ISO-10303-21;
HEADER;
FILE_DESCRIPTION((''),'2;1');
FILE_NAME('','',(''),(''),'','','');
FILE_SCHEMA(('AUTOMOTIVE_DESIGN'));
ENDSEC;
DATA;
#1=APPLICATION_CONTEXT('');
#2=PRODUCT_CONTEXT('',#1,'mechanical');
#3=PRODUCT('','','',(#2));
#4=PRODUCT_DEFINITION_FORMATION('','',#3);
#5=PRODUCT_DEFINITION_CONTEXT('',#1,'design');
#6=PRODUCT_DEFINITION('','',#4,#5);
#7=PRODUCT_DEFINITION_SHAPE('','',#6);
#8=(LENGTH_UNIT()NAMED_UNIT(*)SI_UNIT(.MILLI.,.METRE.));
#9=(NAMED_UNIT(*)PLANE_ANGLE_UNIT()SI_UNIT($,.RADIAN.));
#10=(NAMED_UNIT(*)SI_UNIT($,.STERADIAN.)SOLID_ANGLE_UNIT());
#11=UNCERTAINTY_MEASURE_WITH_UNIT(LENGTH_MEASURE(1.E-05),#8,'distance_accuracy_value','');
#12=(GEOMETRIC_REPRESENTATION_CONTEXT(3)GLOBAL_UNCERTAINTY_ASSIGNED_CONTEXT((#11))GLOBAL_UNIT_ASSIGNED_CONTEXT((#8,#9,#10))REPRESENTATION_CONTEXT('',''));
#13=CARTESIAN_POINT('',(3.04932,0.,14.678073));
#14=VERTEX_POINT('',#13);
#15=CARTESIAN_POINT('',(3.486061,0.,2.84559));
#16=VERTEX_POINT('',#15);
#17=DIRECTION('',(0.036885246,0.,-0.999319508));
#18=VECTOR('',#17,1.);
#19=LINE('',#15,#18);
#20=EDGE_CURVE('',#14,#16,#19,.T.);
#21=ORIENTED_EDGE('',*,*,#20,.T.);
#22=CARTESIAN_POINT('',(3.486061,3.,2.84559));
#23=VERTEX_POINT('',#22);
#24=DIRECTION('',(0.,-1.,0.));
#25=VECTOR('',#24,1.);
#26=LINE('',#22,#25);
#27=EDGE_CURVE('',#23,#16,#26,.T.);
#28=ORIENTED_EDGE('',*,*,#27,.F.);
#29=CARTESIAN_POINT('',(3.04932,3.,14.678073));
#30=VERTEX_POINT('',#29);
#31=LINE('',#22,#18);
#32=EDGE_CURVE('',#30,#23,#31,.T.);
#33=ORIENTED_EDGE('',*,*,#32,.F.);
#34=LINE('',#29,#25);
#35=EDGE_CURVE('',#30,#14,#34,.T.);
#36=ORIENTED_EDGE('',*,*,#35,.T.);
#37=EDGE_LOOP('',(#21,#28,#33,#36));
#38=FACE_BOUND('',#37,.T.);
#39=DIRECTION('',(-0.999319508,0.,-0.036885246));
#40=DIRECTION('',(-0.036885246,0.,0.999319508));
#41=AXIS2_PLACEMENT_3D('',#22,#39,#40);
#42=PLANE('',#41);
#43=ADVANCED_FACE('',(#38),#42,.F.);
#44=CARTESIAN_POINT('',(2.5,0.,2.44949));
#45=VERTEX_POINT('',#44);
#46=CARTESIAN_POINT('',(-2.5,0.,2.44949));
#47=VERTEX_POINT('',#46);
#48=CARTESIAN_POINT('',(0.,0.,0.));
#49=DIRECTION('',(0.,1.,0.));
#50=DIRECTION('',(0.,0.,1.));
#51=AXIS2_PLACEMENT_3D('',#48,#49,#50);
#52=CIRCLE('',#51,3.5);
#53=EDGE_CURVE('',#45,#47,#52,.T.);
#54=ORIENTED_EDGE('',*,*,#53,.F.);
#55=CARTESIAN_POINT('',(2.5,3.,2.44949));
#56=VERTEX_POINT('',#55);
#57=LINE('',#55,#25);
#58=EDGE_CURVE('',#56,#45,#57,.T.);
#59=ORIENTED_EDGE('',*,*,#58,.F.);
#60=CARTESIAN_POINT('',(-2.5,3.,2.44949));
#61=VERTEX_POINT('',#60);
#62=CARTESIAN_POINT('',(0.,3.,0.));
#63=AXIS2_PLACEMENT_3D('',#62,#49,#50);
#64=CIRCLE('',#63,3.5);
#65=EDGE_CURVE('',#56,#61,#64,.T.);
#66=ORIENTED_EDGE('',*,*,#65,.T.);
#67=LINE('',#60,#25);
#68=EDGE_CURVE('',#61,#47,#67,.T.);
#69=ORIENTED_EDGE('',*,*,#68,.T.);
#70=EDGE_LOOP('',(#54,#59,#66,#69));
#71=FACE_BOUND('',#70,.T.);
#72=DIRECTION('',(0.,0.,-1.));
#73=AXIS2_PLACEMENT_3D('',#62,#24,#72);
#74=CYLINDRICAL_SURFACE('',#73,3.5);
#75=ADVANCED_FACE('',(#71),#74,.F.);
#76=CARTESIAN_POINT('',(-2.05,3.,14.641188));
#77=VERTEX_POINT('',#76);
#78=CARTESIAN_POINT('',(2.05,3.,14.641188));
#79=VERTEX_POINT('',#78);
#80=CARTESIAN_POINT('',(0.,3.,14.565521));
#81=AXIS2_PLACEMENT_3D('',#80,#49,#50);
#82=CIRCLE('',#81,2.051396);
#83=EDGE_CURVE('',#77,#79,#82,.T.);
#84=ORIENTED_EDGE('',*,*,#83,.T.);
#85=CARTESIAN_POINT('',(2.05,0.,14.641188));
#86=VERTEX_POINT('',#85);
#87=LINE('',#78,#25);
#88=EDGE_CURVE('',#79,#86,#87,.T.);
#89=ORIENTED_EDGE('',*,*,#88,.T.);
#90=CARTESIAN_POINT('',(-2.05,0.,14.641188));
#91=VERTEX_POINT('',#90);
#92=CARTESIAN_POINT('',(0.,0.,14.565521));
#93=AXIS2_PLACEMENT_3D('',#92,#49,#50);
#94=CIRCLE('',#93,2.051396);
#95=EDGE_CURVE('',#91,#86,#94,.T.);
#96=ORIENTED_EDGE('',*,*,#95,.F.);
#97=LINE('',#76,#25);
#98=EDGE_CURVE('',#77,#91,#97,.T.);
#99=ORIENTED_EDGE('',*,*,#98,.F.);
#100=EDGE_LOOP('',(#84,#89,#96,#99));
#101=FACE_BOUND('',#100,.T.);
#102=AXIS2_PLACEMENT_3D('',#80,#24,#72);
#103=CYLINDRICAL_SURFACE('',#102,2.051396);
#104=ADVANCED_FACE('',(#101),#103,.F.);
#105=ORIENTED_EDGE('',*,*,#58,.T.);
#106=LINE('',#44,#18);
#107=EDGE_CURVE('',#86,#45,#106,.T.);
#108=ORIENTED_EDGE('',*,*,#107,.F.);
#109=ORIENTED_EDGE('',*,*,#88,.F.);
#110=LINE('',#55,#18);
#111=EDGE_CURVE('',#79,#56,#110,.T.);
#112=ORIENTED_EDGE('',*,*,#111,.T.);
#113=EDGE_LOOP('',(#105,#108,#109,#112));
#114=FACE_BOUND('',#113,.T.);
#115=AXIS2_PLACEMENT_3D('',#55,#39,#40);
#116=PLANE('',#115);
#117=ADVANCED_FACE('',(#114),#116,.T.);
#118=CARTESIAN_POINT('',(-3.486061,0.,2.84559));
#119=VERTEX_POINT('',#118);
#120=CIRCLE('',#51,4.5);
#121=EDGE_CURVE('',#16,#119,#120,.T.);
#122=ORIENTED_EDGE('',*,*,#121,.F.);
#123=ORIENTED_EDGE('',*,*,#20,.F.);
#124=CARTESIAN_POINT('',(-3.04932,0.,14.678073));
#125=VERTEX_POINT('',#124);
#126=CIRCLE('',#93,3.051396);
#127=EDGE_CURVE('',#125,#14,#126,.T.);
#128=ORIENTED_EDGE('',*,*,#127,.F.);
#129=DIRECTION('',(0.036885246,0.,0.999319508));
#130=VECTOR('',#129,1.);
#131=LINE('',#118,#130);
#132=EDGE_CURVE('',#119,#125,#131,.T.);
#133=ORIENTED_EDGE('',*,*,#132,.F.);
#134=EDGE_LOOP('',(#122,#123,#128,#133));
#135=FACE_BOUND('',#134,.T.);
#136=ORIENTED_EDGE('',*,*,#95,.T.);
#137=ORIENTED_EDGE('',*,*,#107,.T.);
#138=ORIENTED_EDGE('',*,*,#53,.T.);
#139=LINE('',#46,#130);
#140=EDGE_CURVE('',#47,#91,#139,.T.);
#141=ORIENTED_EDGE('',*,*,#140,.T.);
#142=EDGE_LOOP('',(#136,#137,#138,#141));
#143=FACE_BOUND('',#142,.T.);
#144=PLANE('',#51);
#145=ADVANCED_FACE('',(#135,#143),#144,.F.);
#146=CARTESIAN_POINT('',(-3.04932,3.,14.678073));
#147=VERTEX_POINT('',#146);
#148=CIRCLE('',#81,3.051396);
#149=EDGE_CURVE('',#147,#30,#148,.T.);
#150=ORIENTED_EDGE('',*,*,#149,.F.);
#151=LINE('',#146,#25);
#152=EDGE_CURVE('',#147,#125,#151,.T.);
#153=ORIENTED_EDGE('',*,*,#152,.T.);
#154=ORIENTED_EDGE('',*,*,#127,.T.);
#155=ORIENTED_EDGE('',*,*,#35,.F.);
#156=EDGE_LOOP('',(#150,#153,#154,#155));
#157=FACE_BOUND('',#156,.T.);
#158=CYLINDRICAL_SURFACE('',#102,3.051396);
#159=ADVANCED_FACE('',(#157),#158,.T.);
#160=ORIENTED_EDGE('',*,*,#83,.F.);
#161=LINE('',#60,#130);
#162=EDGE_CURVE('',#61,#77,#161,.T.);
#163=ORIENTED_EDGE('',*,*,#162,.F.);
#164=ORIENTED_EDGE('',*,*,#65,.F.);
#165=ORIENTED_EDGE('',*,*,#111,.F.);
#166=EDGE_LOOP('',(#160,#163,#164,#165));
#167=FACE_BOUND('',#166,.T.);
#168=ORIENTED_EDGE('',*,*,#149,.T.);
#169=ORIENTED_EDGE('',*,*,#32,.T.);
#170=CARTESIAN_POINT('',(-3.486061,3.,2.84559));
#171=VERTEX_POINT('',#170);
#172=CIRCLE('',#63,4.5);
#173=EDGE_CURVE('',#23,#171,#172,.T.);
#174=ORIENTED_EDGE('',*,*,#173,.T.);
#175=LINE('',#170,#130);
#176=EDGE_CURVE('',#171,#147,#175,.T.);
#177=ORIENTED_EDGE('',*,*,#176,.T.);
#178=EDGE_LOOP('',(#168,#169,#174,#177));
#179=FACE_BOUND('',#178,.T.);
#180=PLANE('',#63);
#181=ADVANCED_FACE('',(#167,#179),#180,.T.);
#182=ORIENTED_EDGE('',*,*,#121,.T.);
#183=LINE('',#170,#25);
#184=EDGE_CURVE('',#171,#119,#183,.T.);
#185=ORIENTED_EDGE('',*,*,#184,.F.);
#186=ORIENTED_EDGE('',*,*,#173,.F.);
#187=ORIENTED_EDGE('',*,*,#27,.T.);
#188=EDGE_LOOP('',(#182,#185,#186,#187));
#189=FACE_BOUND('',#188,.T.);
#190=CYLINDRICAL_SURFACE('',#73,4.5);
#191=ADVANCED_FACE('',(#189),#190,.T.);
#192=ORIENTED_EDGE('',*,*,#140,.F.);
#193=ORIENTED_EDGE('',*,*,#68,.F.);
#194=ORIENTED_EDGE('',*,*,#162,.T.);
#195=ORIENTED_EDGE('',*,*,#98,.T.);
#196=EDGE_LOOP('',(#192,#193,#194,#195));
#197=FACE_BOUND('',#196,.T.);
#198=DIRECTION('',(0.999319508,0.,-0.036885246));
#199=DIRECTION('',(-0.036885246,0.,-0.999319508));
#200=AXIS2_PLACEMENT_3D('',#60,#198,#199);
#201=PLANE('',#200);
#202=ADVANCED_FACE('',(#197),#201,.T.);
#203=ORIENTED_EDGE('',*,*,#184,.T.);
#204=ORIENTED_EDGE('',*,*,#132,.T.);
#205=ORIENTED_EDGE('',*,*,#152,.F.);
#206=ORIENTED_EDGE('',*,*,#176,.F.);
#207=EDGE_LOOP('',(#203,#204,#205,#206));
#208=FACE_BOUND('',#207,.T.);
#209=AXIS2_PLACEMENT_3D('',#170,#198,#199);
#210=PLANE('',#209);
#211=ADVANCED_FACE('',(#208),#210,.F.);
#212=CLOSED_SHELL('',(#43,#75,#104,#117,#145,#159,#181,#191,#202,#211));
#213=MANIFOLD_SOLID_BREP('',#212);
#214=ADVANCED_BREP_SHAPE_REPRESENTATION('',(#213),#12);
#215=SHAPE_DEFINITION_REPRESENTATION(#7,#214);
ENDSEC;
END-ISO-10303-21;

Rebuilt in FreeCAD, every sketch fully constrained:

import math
import FreeCAD as App
import Part
import Sketcher

doc = App.newDocument("Part")
params = doc.addObject("Spreadsheet::Sheet", "Params")
for row, (alias, value) in enumerate([
    ("sketch1_radius", "4.5 mm"),
    ("sketch1_radius2", "3.5 mm"),
    ("sketch1_length", "12.2 mm"),
    ("pad1_length", "3 mm"),
], start=1):
    params.set(f"A{row}", alias)
    params.set(f"B{row}", "=" + value)
    params.setAlias(f"B{row}", alias)

body = doc.addObject("PartDesign::Body", "Body")

# Sketch on XZ plane
sketch1 = body.newObject("Sketcher::SketchObject", "Sketch")
sketch1.AttachmentSupport = (doc.getObject("XZ_Plane"), [""])
sketch1.MapMode = "FlatFace"
sketch1.addGeometry([
    Part.LineSegment(App.Vector(-3.5, 2.8, 0), App.Vector(-3, 14.7, 0)),  # 0
    Part.ArcOfCircle(Part.Circle(App.Vector(0, 14.6, 0), App.Vector(0, 0, 1), 3.1), math.radians(2), math.radians(178)),  # 1
    Part.LineSegment(App.Vector(3, 14.7, 0), App.Vector(3.5, 2.8, 0)),  # 2
    Part.ArcOfCircle(Part.Circle(App.Vector(0, 0, 0), App.Vector(0, 0, 1), 4.5), math.radians(141), math.radians(399)),  # 3
    Part.LineSegment(App.Vector(-2, 14.6, 0), App.Vector(-2.5, 2.4, 0)),  # 4
    Part.ArcOfCircle(Part.Circle(App.Vector(0, 0, 0), App.Vector(0, 0, 1), 3.5), math.radians(136), math.radians(404)),  # 5
    Part.LineSegment(App.Vector(2.5, 2.4, 0), App.Vector(2, 14.6, 0)),  # 6
    Part.ArcOfCircle(Part.Circle(App.Vector(0, 14.6, 0), App.Vector(0, 0, 1), 2.1), math.radians(2), math.radians(178)),  # 7
], False)
sketch1.addConstraint([
    Sketcher.Constraint("Tangent", 0, 2, 1, 2),
    Sketcher.Constraint("Tangent", 1, 1, 2, 1),
    Sketcher.Constraint("Coincident", 2, 2, 3, 2),
    Sketcher.Constraint("Coincident", 3, 1, 0, 1),
    Sketcher.Constraint("Coincident", 4, 2, 5, 1),
    Sketcher.Constraint("Coincident", 5, 2, 6, 1),
    Sketcher.Constraint("Tangent", 6, 2, 7, 1),
    Sketcher.Constraint("Tangent", 7, 2, 4, 1),
    Sketcher.Constraint("Coincident", 3, 3, -1, 1),
    Sketcher.Constraint("Coincident", 5, 3, -1, 1),
    Sketcher.Constraint("Coincident", 7, 3, 1, 3),
    Sketcher.Constraint("Symmetric", 0, 2, 1, 1, -2),
    Sketcher.Constraint("Parallel", 0, 4),
    Sketcher.Constraint("Parallel", 2, 6),
    Sketcher.Constraint("Radius", 3, 4.5),
    Sketcher.Constraint("Radius", 5, 3.5),
    Sketcher.Constraint("DistanceX", 4, 2, 5, 2, 5.0),
    Sketcher.Constraint("Distance", 4, 12.2),
    Sketcher.Constraint("DistanceX", 7, 2, 6, 2, 4.1),
    Sketcher.Constraint("Radius", 1, 3.051396),
])
sketch1.setExpression("Constraints[14]", "Params.sketch1_radius")
sketch1.setExpression("Constraints[15]", "Params.sketch1_radius2")
sketch1.setExpression("Constraints[17]", "Params.sketch1_length")
pad1 = body.newObject("PartDesign::Pad", "Pad")
pad1.Profile = sketch1
pad1.setExpression("Length", "Params.pad1_length")
pad1.Reversed = True

doc.recompute()
